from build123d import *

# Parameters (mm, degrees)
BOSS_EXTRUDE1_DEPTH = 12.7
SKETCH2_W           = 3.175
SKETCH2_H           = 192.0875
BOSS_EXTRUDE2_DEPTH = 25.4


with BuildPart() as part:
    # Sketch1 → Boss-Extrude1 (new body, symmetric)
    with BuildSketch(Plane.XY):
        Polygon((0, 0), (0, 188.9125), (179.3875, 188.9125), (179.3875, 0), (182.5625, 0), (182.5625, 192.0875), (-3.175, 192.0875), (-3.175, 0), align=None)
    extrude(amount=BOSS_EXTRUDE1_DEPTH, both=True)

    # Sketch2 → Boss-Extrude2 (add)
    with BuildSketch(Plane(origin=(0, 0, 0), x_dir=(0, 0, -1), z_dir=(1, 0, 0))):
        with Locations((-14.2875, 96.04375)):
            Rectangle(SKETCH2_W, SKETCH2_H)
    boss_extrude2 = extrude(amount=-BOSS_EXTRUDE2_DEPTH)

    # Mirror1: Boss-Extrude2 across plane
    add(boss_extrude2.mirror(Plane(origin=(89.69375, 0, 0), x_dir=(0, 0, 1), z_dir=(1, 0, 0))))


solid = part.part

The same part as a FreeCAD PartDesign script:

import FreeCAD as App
import Part
import Sketcher

V = App.Vector
Q = App.Units.Quantity


def add_polygon(sketch, points):
    """Adds a closed chain of lines whose ends are joined by coincident constraints."""
    first, n = sketch.GeometryCount, len(points)
    for a, b in zip(points, points[1:] + points[:1]):
        sketch.addGeometry(Part.LineSegment(App.Vector(*a, 0), App.Vector(*b, 0)), False)
    for i in range(n):
        sketch.addConstraint(Sketcher.Constraint("Coincident", first + i, 2, first + (i + 1) % n, 1))

doc = App.newDocument("Part")
body = doc.addObject("PartDesign::Body", "Body")

# Sketch on XY plane
sketch1 = body.newObject("Sketcher::SketchObject", "Sketch")
sketch1.AttachmentSupport = (doc.getObject("XY_Plane"), [""])
sketch1.MapMode = "FlatFace"
add_polygon(sketch1, [(0, 0), (0, 188.9125), (179.3875, 188.9125), (179.3875, 0), (182.5625, 0), (182.5625, 192.0875), (-3.175, 192.0875), (-3.175, 0)])  # lines 0-7
sketch1.addConstraint([
    Sketcher.Constraint("Vertical", 0),
    Sketcher.Constraint("Horizontal", 1),
    Sketcher.Constraint("Vertical", 2),
    Sketcher.Constraint("Horizontal", 3),
    Sketcher.Constraint("Vertical", 4),
    Sketcher.Constraint("Horizontal", 5),
    Sketcher.Constraint("Vertical", 6),
    Sketcher.Constraint("Horizontal", 7),
    Sketcher.Constraint("Coincident", 7, 2, -1, 1),
    Sketcher.Constraint("PointOnObject", 2, 2, -1),
    Sketcher.Constraint("Equal", 3, 7),
    Sketcher.Constraint("DistanceX", 1, 1, 1, 2, Q("7.0625 in")),
    Sketcher.Constraint("DistanceX", 3, 1, 3, 2, Q("0.125 in")),
    Sketcher.Constraint("DistanceY", 0, 1, 0, 2, Q("7.4375 in")),
    Sketcher.Constraint("DistanceY", 4, 1, 4, 2, Q("7.5625 in")),
])
pad1 = body.newObject("PartDesign::Pad", "Pad")
pad1.Profile = sketch1
pad1.Length = Q("1 in")
pad1.Midplane = True

# Sketch on YZ plane
sketch2 = body.newObject("Sketcher::SketchObject", "Sketch001")
sketch2.AttachmentSupport = (doc.getObject("YZ_Plane"), [""])
sketch2.MapMode = "FlatFace"
add_polygon(sketch2, [(192.0875, 15.875), (0, 15.875), (0, 12.7), (192.0875, 12.7)])  # lines 0-3
sketch2.addConstraint([
    Sketcher.Constraint("Horizontal", 0),
    Sketcher.Constraint("Vertical", 1),
    Sketcher.Constraint("Horizontal", 2),
    Sketcher.Constraint("Vertical", 3),
    Sketcher.Constraint("PointOnObject", 0, 2, -2),
    Sketcher.Constraint("DistanceY", -1, 1, 1, 2, Q("0.5 in")),
    Sketcher.Constraint("DistanceX", 0, 2, 0, 1, Q("7.5625 in")),
    Sketcher.Constraint("DistanceY", 1, 2, 1, 1, Q("0.125 in")),
])
pad2 = body.newObject("PartDesign::Pad", "Pad001")
pad2.Profile = sketch2
pad2.Length = Q("1 in")
pad2.Reversed = True
doc.recompute()

datumplane = body.newObject("PartDesign::Plane", "DatumPlane")
datumplane.AttachmentSupport = (doc.getObject("YZ_Plane"), [""])
datumplane.MapMode = "FlatFace"
datumplane.AttachmentOffset = App.Placement(V(0, 0, 3.53125 * 25.4), App.Rotation())
mirrored = body.newObject("PartDesign::Mirrored", "Mirrored")
mirrored.Originals = [pad2]
mirrored.MirrorPlane = (datumplane, [""])
body.Tip = mirrored

doc.recompute()
